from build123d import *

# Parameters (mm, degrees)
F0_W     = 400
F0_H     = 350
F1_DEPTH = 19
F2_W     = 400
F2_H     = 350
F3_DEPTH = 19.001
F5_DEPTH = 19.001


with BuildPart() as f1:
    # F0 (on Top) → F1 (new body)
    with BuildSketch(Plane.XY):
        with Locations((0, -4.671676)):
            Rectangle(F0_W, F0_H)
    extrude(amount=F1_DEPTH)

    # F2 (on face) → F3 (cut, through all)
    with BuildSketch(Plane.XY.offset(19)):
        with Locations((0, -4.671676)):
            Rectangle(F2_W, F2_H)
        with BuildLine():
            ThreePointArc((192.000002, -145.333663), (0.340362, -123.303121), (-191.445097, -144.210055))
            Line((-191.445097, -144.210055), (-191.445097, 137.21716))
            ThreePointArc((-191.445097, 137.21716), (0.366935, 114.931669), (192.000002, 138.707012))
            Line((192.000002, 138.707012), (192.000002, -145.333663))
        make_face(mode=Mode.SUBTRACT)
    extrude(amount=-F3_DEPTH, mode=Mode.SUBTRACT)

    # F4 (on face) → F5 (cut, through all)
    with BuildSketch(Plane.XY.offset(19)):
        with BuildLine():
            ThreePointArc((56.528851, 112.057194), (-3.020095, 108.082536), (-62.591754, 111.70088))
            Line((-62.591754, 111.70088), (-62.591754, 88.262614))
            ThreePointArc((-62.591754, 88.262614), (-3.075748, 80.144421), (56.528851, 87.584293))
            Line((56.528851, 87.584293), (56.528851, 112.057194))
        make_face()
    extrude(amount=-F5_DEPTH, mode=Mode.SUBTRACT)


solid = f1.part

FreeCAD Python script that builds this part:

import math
import FreeCAD as App
import Part
import Sketcher
from FreeCAD import Vector


def add_polygon(sketch, points):
    """Adds a closed chain of lines whose ends are joined by coincident constraints."""
    first, n = sketch.GeometryCount, len(points)
    for a, b in zip(points, points[1:] + points[:1]):
        sketch.addGeometry(Part.LineSegment(App.Vector(*a, 0), App.Vector(*b, 0)), False)
    for i in range(n):
        sketch.addConstraint(Sketcher.Constraint("Coincident", first + i, 2, first + (i + 1) % n, 1))

doc = App.newDocument("Part")
body = doc.addObject("PartDesign::Body", "Body")

sketch1 = body.newObject("Sketcher::SketchObject", "Sketch")
sketch1.AttachmentSupport = (doc.getObject("XY_Plane"), [""])
sketch1.MapMode = "FlatFace"
add_polygon(sketch1, [(-200, 170), (-200, -180), (200, -180), (200, 170)])
sketch1.addConstraint([
    Sketcher.Constraint("Vertical", 0),
    Sketcher.Constraint("Horizontal", 1),
    Sketcher.Constraint("Vertical", 2),
    Sketcher.Constraint("Horizontal", 3),
    Sketcher.Constraint("DistanceX", 1, 1, 1, 2, 400.0),
    Sketcher.Constraint("DistanceY", 0, 2, 0, 1, 350.0),
    Sketcher.Constraint("DistanceX", 0, 2, -1, 1, 200.0),
    Sketcher.Constraint("DistanceY", 0, 2, -1, 1, 179.671676),
])
pad1 = body.newObject("PartDesign::Pad", "Pad")
pad1.Profile = sketch1
pad1.Length = 19

sketch2 = body.newObject("Sketcher::SketchObject", "Sketch001")
sketch2.AttachmentSupport = (doc.getObject("XY_Plane"), [""])
sketch2.MapMode = "FlatFace"
sketch2.AttachmentOffset = App.Placement(Vector(0, 0, 19), App.Rotation())
add_polygon(sketch2, [(-200, 170), (-200, -180), (200, -180), (200, 170)])
sketch2.addGeometry(Part.LineSegment(Vector(192, 139, 0), Vector(192, -145, 0)), False)
sketch2.addGeometry(Part.ArcOfCircle(Part.Circle(Vector(-2, -990, 0), Vector(0, 0, 1), 867), math.radians(77), math.radians(103)), False)
sketch2.addGeometry(Part.LineSegment(Vector(-191, -144, 0), Vector(-191, 137, 0)), False)
sketch2.addGeometry(Part.ArcOfCircle(Part.Circle(Vector(-3, 924, 0), Vector(0, 0, 1), 810), math.radians(-103), math.radians(-76)), False)
sketch2.addConstraint([
    Sketcher.Constraint("Coincident", 4, 2, 5, 1),
    Sketcher.Constraint("Coincident", 5, 2, 6, 1),
    Sketcher.Constraint("Coincident", 6, 2, 7, 1),
    Sketcher.Constraint("Coincident", 7, 2, 4, 1),
    Sketcher.Constraint("Vertical", 0),
    Sketcher.Constraint("Horizontal", 1),
    Sketcher.Constraint("Vertical", 2),
    Sketcher.Constraint("Horizontal", 3),
    Sketcher.Constraint("Vertical", 4),
    Sketcher.Constraint("Vertical", 6),
    Sketcher.Constraint("DistanceX", 1, 1, 1, 2, 400.0),
    Sketcher.Constraint("DistanceY", 0, 2, 0, 1, 350.0),
    Sketcher.Constraint("DistanceX", 0, 2, -1, 1, 200.0),
    Sketcher.Constraint("DistanceX", -1, 1, 4, 2, 192.000002),
    Sketcher.Constraint("Radius", 5, 866.809276),
    Sketcher.Constraint("Radius", 7, 809.542822),
    Sketcher.Constraint("DistanceY", 5, 3, 0, 2, 810.437),
    Sketcher.Constraint("DistanceX", 6, 2, 4, 2, 383.445099),
    Sketcher.Constraint("DistanceY", 4, 2, 4, 1, 284.040675),
    Sketcher.Constraint("DistanceY", 6, 1, 6, 2, 281.427215),
    Sketcher.Constraint("DistanceX", 7, 3, -1, 1, 2.778469),
    Sketcher.Constraint("DistanceY", -1, 1, 7, 3, 924.468381),
])
pocket1 = body.newObject("PartDesign::Pocket", "Pocket")
pocket1.Profile = sketch2
pocket1.Type = "ThroughAll"

sketch3 = body.newObject("Sketcher::SketchObject", "Sketch002")
sketch3.AttachmentSupport = (doc.getObject("XY_Plane"), [""])
sketch3.MapMode = "FlatFace"
sketch3.AttachmentOffset = App.Placement(Vector(0, 0, 19), App.Rotation())
sketch3.addGeometry([
    Part.ArcOfCircle(Part.Circle(Vector(-4, 577, 0), Vector(0, 0, 1), 469), math.radians(-97.12), math.radians(-82.53)),
    Part.LineSegment(Vector(-63, 112, 0), Vector(-63, 88, 0)),
    Part.ArcOfCircle(Part.Circle(Vector(-2, 312, 0), Vector(0, 0, 1), 232), math.radians(-105), math.radians(-75)),
    Part.LineSegment(Vector(57, 88, 0), Vector(57, 112, 0)),
], False)
sketch3.addConstraint([
    Sketcher.Constraint("Coincident", 0, 1, 1, 1),
    Sketcher.Constraint("Coincident", 1, 2, 2, 1),
    Sketcher.Constraint("Coincident", 2, 2, 3, 1),
    Sketcher.Constraint("Coincident", 3, 2, 0, 2),
    Sketcher.Constraint("Vertical", 1),
    Sketcher.Constraint("Vertical", 3),
    Sketcher.Constraint("Radius", 2, 231.905541),
    Sketcher.Constraint("DistanceY", 3, 1, 3, 2, 24.472901),
    Sketcher.Constraint("Radius", 0, 469.097596),
    Sketcher.Constraint("DistanceY", -1, 1, 2, 3, 312.046202),
    Sketcher.Constraint("DistanceX", 0, 1, 0, 3, 58.168498),
    Sketcher.Constraint("DistanceY", 1, 2, 1, 1, 23.438266),
    Sketcher.Constraint("DistanceX", -1, 1, 2, 2, 56.528851),
    Sketcher.Constraint("DistanceX", 0, 3, 2, 3, 2.66805),
])
pocket2 = body.newObject("PartDesign::Pocket", "Pocket001")
pocket2.Profile = sketch3
pocket2.Type = "ThroughAll"

doc.recompute()
